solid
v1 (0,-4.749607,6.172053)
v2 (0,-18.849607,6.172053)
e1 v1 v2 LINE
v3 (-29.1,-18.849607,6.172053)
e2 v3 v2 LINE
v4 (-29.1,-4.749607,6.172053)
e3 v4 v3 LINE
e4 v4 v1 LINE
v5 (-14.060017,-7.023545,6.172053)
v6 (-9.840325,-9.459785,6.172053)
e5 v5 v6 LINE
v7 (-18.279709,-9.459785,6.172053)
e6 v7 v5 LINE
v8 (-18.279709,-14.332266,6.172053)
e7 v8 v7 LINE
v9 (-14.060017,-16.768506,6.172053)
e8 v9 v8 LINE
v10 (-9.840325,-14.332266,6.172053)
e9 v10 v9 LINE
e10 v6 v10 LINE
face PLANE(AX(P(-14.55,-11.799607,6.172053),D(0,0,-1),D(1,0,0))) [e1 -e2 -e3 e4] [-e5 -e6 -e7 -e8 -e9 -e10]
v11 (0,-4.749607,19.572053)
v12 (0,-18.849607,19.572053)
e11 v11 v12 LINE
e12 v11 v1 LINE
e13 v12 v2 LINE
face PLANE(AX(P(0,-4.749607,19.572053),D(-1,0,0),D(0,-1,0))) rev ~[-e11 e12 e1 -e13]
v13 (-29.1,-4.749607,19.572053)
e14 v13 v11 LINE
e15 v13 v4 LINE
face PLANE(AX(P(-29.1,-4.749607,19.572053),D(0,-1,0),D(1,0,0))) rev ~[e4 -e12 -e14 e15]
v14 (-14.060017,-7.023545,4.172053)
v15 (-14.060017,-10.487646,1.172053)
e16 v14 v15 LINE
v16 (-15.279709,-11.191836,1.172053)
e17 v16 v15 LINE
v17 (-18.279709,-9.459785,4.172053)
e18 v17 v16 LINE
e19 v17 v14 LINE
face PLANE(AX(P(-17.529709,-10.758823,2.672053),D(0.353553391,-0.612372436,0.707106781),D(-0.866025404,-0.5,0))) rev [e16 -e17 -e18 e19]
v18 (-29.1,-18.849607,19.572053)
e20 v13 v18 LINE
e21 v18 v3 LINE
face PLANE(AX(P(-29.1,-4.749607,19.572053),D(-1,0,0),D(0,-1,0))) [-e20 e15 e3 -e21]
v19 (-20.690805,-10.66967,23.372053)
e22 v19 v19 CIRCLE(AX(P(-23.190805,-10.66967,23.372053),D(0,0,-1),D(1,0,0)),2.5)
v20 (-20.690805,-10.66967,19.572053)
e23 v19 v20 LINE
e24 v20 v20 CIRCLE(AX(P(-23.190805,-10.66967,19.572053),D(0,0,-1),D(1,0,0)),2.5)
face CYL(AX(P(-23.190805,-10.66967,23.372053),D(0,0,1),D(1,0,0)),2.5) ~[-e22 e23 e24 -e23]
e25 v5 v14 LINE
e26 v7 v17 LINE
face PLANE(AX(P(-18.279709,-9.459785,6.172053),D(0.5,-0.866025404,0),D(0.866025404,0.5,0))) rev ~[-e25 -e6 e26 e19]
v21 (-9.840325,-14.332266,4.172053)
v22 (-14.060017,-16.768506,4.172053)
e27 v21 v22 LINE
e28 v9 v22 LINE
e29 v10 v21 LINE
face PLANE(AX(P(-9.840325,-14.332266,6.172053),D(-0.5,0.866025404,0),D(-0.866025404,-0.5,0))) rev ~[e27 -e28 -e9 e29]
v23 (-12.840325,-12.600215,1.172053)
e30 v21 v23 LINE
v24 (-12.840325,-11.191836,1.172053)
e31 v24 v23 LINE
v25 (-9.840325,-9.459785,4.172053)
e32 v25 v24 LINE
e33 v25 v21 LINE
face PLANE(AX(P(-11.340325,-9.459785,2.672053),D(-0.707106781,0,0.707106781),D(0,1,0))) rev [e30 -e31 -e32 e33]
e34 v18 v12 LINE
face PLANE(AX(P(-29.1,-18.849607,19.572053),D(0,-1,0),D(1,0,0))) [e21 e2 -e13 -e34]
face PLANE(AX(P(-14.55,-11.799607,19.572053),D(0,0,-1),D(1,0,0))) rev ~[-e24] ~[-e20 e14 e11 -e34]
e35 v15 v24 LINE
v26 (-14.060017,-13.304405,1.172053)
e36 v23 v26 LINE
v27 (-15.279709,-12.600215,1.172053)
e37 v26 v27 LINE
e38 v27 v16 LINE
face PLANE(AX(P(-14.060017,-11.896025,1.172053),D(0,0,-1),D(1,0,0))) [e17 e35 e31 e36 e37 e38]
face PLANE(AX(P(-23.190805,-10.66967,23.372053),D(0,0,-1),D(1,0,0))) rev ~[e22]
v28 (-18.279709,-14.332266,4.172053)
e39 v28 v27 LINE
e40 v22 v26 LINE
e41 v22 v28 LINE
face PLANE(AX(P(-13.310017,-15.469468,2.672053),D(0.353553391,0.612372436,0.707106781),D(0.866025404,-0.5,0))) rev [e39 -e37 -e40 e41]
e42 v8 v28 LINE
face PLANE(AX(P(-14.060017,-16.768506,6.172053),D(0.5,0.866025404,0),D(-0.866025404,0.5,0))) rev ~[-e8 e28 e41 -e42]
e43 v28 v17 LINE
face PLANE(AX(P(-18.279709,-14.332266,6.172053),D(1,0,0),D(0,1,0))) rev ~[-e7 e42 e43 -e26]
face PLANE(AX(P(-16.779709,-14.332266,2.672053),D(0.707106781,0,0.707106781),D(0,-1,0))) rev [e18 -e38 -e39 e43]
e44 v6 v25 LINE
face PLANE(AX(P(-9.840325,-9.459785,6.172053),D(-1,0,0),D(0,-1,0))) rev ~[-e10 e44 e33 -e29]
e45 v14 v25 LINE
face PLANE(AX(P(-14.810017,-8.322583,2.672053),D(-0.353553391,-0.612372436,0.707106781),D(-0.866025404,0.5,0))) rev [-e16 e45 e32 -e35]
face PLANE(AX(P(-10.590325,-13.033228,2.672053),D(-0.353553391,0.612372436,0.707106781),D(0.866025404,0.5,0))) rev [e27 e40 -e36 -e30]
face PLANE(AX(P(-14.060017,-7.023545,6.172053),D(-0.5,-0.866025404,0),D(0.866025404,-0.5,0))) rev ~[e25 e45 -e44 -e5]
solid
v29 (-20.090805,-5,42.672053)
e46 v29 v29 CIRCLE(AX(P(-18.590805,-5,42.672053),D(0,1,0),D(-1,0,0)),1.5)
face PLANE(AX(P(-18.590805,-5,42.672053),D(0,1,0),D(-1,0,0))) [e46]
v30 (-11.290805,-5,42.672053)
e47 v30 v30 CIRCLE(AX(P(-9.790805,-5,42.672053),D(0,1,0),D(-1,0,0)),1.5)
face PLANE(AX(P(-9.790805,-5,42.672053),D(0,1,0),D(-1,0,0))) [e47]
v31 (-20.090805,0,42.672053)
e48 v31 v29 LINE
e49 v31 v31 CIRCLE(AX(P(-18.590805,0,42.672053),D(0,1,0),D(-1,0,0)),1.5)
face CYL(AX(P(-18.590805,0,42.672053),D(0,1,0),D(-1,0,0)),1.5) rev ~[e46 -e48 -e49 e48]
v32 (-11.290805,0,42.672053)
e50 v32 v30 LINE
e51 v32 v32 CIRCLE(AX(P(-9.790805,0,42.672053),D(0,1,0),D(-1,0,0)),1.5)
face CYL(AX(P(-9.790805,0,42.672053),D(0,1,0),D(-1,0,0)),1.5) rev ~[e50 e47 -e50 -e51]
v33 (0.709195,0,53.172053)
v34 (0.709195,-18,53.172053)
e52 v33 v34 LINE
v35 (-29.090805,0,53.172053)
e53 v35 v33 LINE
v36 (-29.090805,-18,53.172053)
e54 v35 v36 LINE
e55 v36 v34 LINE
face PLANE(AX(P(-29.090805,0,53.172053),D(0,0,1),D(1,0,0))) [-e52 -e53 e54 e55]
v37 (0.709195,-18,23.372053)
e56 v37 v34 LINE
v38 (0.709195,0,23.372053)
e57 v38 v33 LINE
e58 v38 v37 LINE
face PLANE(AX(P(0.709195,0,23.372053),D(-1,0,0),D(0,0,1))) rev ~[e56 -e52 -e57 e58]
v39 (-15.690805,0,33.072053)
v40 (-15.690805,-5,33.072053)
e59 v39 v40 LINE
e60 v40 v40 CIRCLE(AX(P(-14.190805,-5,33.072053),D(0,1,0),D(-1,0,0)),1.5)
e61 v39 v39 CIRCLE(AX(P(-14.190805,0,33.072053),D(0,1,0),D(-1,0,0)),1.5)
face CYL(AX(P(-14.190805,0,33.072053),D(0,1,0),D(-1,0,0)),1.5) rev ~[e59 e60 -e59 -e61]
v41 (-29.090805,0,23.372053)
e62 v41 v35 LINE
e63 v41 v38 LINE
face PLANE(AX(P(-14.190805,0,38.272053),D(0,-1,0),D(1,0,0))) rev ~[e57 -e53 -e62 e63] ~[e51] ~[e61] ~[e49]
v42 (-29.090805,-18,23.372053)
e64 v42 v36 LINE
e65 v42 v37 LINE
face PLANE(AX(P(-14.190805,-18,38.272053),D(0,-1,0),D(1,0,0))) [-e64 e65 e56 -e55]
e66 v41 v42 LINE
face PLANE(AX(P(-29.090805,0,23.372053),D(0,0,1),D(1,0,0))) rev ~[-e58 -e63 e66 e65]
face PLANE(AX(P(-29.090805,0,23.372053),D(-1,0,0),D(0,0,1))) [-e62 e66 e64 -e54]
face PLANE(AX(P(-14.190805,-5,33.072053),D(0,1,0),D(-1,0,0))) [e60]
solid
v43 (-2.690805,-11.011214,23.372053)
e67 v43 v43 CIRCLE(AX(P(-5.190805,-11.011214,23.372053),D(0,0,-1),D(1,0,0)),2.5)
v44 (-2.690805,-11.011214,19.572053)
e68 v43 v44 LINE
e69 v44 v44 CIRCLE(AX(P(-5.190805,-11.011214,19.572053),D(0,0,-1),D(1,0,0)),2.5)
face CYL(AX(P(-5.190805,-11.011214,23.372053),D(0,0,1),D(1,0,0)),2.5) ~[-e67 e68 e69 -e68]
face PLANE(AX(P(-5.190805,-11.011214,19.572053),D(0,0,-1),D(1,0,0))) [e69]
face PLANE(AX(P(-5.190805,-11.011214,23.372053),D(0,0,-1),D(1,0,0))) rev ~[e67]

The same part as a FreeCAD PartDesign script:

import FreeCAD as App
import Part
import Sketcher
Q = App.Units.Quantity


def edges_at(feature, points):
    """Names of the edges that pass closest to the given points."""
    edges = feature.Shape.Edges
    near = lambda p: min(range(len(edges)), key=lambda i: edges[i].distToShape(Part.Vertex(*p))[0])
    return sorted({f"Edge{near(p) + 1}" for p in points})

doc = App.newDocument("Part")
body = doc.addObject("PartDesign::Body", "Body")

# Sketch on XZ plane
sketch1 = body.newObject("Sketcher::SketchObject", "Sketch")
sketch1.AttachmentSupport = (doc.getObject("XZ_Plane"), [""])
sketch1.MapMode = "FlatFace"
sketch1.addGeometry([
    Part.LineSegment(App.Vector(-29, 53, 0), App.Vector(-29, 23, 0)),
    Part.LineSegment(App.Vector(-29, 23, 0), App.Vector(1, 23, 0)),
    Part.LineSegment(App.Vector(1, 23, 0), App.Vector(1, 53, 0)),
    Part.LineSegment(App.Vector(1, 53, 0), App.Vector(-29, 53, 0)),
], False)
sketch1.addConstraint([
    Sketcher.Constraint("Coincident", 0, 2, 1, 1),
    Sketcher.Constraint("Coincident", 1, 2, 2, 1),
    Sketcher.Constraint("Coincident", 2, 2, 3, 1),
    Sketcher.Constraint("Coincident", 3, 2, 0, 1),
    Sketcher.Constraint("Vertical", 0),
    Sketcher.Constraint("Horizontal", 1),
    Sketcher.Constraint("Vertical", 2),
    Sketcher.Constraint("Horizontal", 3),
    Sketcher.Constraint("Equal", 3, 0),
    Sketcher.Constraint("DistanceX", 1, 1, 1, 2, 29.8),
    Sketcher.Constraint("DistanceX", 0, 2, -1, 1, 29.090805),
    Sketcher.Constraint("DistanceY", -1, 1, 0, 2, 23.372053),
])
pad1 = body.newObject("PartDesign::Pad", "Pad")
pad1.Profile = sketch1
pad1.Length = 18

# Sketch on XZ plane
sketch2 = body.newObject("Sketcher::SketchObject", "Sketch001")
sketch2.AttachmentSupport = (doc.getObject("XZ_Plane"), [""])
sketch2.MapMode = "FlatFace"
sketch2.addGeometry([
    Part.Circle(App.Vector(-9.8, 42.7, 0), App.Vector(0, 0, 1), 1.5),
    Part.Circle(App.Vector(-18.6, 42.7, 0), App.Vector(0, 0, 1), 1.5),
    Part.Circle(App.Vector(-14.2, 33.1, 0), App.Vector(0, 0, 1), 1.5),
], False)
sketch2.addConstraint([
    Sketcher.Constraint("Equal", 0, 1),
    Sketcher.Constraint("Equal", 1, 2),
    Sketcher.Constraint("Horizontal", 0, 3, 1, 3),
    Sketcher.Constraint("Diameter", 0, 3.0),
    Sketcher.Constraint("DistanceX", 1, 3, 0, 3, 8.8),
    Sketcher.Constraint("DistanceX", 2, 3, 0, 3, 4.4),
    Sketcher.Constraint("DistanceY", 2, 3, 0, 3, 9.6),
    Sketcher.Constraint("DistanceX", 0, 3, -1, 1, 9.790805),
    Sketcher.Constraint("DistanceY", -1, 1, 0, 3, 42.672053),
])
pocket1 = body.newObject("PartDesign::Pocket", "Pocket")
pocket1.Profile = sketch2
pocket1.Length = 5
pocket1.Reversed = True
body2 = doc.addObject("PartDesign::Body", "Body001")

# Sketch on XY plane
sketch3 = body2.newObject("Sketcher::SketchObject", "Sketch002")
sketch3.AttachmentSupport = (doc.getObject("XY_Plane001"), [""])
sketch3.MapMode = "FlatFace"
sketch3.AttachmentOffset = App.Placement(App.Vector(0, 0, 23.372053), App.Rotation())
sketch3.addGeometry(Part.Circle(App.Vector(-5.2, -11, 0), App.Vector(0, 0, 1), 2.5), False)
sketch3.addConstraint([
    Sketcher.Constraint("Diameter", 0, 5.0),
    Sketcher.Constraint("DistanceX", 0, 3, -1, 1, 5.190805),
    Sketcher.Constraint("DistanceY", 0, 3, -1, 1, 11.011214),
])
pad2 = body2.newObject("PartDesign::Pad", "Pad001")
pad2.Profile = sketch3
pad2.Length = 3.8
pad2.Reversed = True
body3 = doc.addObject("PartDesign::Body", "Body002")

# Sketch on XY plane
sketch4 = body3.newObject("Sketcher::SketchObject", "Sketch003")
sketch4.AttachmentSupport = (doc.getObject("XY_Plane002"), [""])
sketch4.MapMode = "FlatFace"
sketch4.AttachmentOffset = App.Placement(App.Vector(0, 0, 23.372053), App.Rotation())
sketch4.addGeometry(Part.Circle(App.Vector(-23.2, -10.7, 0), App.Vector(0, 0, 1), 2.5), False)
sketch4.addConstraint([
    Sketcher.Constraint("Diameter", 0, 5.0),
    Sketcher.Constraint("DistanceY", 0, 3, -1, 1, 10.66967),
    Sketcher.Constraint("DistanceX", 0, 3, -1, 1, 23.190805),
])
pad3 = body3.newObject("PartDesign::Pad", "Pad002")
pad3.Profile = sketch4
pad3.Length = 3.8
pad3.Reversed = True

# Sketch on XY plane
sketch5 = body3.newObject("Sketcher::SketchObject", "Sketch004")
sketch5.AttachmentSupport = (doc.getObject("XY_Plane002"), [""])
sketch5.MapMode = "FlatFace"
sketch5.AttachmentOffset = App.Placement(App.Vector(0, 0, 19.572053), App.Rotation())
sketch5.addGeometry([
    Part.LineSegment(App.Vector(-29, -19, 0), App.Vector(-29, -5, 0)),
    Part.LineSegment(App.Vector(-29, -5, 0), App.Vector(0, -5, 0)),
    Part.LineSegment(App.Vector(0, -5, 0), App.Vector(0, -19, 0)),
    Part.LineSegment(App.Vector(0, -19, 0), App.Vector(-29, -19, 0)),
], False)
sketch5.addConstraint([
    Sketcher.Constraint("Coincident", 0, 2, 1, 1),
    Sketcher.Constraint("Coincident", 1, 2, 2, 1),
    Sketcher.Constraint("Coincident", 2, 2, 3, 1),
    Sketcher.Constraint("Coincident", 3, 2, 0, 1),
    Sketcher.Constraint("Vertical", 0),
    Sketcher.Constraint("Horizontal", 1),
    Sketcher.Constraint("Vertical", 2),
    Sketcher.Constraint("Horizontal", 3),
    Sketcher.Constraint("PointOnObject", 1, 2, -2),
    Sketcher.Constraint("DistanceX", 1, 1, 1, 2, 29.1),
    Sketcher.Constraint("DistanceY", 0, 1, 0, 2, 14.1),
    Sketcher.Constraint("DistanceY", 0, 2, -1, 1, 4.749607),
])
pad4 = body3.newObject("PartDesign::Pad", "Pad003")
pad4.Profile = sketch5
pad4.Length = 13.4
pad4.Reversed = True

# Sketch on XY plane
sketch6 = body3.newObject("Sketcher::SketchObject", "Sketch005")
sketch6.AttachmentSupport = (doc.getObject("XY_Plane002"), [""])
sketch6.MapMode = "FlatFace"
sketch6.AttachmentOffset = App.Placement(App.Vector(0, 0, 6.172053), App.Rotation())
sketch6.addGeometry([
    Part.LineSegment(App.Vector(-18.3, -14.3, 0), App.Vector(-18.3, -9.5, 0)),  # 0
    Part.LineSegment(App.Vector(-18.3, -9.5, 0), App.Vector(-14.1, -7, 0)),  # 1
    Part.LineSegment(App.Vector(-14.1, -7, 0), App.Vector(-9.8, -9.5, 0)),  # 2
    Part.LineSegment(App.Vector(-9.8, -9.5, 0), App.Vector(-9.8, -14.3, 0)),  # 3
    Part.LineSegment(App.Vector(-9.8, -14.3, 0), App.Vector(-14.1, -16.8, 0)),  # 4
    Part.LineSegment(App.Vector(-14.1, -16.8, 0), App.Vector(-18.3, -14.3, 0)),  # 5
], False)
sketch6.addConstraint([
    Sketcher.Constraint("Coincident", 0, 2, 1, 1),
    Sketcher.Constraint("Coincident", 1, 2, 2, 1),
    Sketcher.Constraint("Coincident", 2, 2, 3, 1),
    Sketcher.Constraint("Coincident", 3, 2, 4, 1),
    Sketcher.Constraint("Coincident", 4, 2, 5, 1),
    Sketcher.Constraint("Coincident", 5, 2, 0, 1),
    Sketcher.Constraint("Vertical", 0),
    Sketcher.Constraint("Vertical", 3),
    Sketcher.Constraint("Parallel", 1, 4),
    Sketcher.Constraint("Parallel", 2, 5),
    Sketcher.Constraint("Horizontal", 0, 2, 2, 2),
    Sketcher.Constraint("Horizontal", 3, 2, 5, 2),
    Sketcher.Constraint("Vertical", 1, 2, 4, 2),
    Sketcher.Constraint("Angle", 1, Q("30 deg")),
    Sketcher.Constraint("DistanceY", 0, 1, 0, 2, 4.872481),
    Sketcher.Constraint("Distance", 1, 4.872481),
    Sketcher.Constraint("DistanceX", 0, 2, -1, 1, 18.279709),
    Sketcher.Constraint("DistanceY", 0, 2, -1, 1, 9.459785),
])
pad5 = body3.newObject("PartDesign::Pad", "Pad004")
pad5.Profile = sketch6
pad5.Length = 5
pad5.Reversed = True
doc.recompute()

chamfer = body3.newObject("PartDesign::Chamfer", "Chamfer")
chamfer.Base = (pad5, edges_at(pad5, [
    (-11.95, -15.55, 1.172),
    (-18.28, -11.896, 1.172),
    (-16.17, -15.55, 1.172),
    (-16.17, -8.242, 1.172),
    (-11.95, -8.242, 1.172),
    (-9.84, -11.896, 1.172),
]))
chamfer.Size = 3

doc.recompute()
